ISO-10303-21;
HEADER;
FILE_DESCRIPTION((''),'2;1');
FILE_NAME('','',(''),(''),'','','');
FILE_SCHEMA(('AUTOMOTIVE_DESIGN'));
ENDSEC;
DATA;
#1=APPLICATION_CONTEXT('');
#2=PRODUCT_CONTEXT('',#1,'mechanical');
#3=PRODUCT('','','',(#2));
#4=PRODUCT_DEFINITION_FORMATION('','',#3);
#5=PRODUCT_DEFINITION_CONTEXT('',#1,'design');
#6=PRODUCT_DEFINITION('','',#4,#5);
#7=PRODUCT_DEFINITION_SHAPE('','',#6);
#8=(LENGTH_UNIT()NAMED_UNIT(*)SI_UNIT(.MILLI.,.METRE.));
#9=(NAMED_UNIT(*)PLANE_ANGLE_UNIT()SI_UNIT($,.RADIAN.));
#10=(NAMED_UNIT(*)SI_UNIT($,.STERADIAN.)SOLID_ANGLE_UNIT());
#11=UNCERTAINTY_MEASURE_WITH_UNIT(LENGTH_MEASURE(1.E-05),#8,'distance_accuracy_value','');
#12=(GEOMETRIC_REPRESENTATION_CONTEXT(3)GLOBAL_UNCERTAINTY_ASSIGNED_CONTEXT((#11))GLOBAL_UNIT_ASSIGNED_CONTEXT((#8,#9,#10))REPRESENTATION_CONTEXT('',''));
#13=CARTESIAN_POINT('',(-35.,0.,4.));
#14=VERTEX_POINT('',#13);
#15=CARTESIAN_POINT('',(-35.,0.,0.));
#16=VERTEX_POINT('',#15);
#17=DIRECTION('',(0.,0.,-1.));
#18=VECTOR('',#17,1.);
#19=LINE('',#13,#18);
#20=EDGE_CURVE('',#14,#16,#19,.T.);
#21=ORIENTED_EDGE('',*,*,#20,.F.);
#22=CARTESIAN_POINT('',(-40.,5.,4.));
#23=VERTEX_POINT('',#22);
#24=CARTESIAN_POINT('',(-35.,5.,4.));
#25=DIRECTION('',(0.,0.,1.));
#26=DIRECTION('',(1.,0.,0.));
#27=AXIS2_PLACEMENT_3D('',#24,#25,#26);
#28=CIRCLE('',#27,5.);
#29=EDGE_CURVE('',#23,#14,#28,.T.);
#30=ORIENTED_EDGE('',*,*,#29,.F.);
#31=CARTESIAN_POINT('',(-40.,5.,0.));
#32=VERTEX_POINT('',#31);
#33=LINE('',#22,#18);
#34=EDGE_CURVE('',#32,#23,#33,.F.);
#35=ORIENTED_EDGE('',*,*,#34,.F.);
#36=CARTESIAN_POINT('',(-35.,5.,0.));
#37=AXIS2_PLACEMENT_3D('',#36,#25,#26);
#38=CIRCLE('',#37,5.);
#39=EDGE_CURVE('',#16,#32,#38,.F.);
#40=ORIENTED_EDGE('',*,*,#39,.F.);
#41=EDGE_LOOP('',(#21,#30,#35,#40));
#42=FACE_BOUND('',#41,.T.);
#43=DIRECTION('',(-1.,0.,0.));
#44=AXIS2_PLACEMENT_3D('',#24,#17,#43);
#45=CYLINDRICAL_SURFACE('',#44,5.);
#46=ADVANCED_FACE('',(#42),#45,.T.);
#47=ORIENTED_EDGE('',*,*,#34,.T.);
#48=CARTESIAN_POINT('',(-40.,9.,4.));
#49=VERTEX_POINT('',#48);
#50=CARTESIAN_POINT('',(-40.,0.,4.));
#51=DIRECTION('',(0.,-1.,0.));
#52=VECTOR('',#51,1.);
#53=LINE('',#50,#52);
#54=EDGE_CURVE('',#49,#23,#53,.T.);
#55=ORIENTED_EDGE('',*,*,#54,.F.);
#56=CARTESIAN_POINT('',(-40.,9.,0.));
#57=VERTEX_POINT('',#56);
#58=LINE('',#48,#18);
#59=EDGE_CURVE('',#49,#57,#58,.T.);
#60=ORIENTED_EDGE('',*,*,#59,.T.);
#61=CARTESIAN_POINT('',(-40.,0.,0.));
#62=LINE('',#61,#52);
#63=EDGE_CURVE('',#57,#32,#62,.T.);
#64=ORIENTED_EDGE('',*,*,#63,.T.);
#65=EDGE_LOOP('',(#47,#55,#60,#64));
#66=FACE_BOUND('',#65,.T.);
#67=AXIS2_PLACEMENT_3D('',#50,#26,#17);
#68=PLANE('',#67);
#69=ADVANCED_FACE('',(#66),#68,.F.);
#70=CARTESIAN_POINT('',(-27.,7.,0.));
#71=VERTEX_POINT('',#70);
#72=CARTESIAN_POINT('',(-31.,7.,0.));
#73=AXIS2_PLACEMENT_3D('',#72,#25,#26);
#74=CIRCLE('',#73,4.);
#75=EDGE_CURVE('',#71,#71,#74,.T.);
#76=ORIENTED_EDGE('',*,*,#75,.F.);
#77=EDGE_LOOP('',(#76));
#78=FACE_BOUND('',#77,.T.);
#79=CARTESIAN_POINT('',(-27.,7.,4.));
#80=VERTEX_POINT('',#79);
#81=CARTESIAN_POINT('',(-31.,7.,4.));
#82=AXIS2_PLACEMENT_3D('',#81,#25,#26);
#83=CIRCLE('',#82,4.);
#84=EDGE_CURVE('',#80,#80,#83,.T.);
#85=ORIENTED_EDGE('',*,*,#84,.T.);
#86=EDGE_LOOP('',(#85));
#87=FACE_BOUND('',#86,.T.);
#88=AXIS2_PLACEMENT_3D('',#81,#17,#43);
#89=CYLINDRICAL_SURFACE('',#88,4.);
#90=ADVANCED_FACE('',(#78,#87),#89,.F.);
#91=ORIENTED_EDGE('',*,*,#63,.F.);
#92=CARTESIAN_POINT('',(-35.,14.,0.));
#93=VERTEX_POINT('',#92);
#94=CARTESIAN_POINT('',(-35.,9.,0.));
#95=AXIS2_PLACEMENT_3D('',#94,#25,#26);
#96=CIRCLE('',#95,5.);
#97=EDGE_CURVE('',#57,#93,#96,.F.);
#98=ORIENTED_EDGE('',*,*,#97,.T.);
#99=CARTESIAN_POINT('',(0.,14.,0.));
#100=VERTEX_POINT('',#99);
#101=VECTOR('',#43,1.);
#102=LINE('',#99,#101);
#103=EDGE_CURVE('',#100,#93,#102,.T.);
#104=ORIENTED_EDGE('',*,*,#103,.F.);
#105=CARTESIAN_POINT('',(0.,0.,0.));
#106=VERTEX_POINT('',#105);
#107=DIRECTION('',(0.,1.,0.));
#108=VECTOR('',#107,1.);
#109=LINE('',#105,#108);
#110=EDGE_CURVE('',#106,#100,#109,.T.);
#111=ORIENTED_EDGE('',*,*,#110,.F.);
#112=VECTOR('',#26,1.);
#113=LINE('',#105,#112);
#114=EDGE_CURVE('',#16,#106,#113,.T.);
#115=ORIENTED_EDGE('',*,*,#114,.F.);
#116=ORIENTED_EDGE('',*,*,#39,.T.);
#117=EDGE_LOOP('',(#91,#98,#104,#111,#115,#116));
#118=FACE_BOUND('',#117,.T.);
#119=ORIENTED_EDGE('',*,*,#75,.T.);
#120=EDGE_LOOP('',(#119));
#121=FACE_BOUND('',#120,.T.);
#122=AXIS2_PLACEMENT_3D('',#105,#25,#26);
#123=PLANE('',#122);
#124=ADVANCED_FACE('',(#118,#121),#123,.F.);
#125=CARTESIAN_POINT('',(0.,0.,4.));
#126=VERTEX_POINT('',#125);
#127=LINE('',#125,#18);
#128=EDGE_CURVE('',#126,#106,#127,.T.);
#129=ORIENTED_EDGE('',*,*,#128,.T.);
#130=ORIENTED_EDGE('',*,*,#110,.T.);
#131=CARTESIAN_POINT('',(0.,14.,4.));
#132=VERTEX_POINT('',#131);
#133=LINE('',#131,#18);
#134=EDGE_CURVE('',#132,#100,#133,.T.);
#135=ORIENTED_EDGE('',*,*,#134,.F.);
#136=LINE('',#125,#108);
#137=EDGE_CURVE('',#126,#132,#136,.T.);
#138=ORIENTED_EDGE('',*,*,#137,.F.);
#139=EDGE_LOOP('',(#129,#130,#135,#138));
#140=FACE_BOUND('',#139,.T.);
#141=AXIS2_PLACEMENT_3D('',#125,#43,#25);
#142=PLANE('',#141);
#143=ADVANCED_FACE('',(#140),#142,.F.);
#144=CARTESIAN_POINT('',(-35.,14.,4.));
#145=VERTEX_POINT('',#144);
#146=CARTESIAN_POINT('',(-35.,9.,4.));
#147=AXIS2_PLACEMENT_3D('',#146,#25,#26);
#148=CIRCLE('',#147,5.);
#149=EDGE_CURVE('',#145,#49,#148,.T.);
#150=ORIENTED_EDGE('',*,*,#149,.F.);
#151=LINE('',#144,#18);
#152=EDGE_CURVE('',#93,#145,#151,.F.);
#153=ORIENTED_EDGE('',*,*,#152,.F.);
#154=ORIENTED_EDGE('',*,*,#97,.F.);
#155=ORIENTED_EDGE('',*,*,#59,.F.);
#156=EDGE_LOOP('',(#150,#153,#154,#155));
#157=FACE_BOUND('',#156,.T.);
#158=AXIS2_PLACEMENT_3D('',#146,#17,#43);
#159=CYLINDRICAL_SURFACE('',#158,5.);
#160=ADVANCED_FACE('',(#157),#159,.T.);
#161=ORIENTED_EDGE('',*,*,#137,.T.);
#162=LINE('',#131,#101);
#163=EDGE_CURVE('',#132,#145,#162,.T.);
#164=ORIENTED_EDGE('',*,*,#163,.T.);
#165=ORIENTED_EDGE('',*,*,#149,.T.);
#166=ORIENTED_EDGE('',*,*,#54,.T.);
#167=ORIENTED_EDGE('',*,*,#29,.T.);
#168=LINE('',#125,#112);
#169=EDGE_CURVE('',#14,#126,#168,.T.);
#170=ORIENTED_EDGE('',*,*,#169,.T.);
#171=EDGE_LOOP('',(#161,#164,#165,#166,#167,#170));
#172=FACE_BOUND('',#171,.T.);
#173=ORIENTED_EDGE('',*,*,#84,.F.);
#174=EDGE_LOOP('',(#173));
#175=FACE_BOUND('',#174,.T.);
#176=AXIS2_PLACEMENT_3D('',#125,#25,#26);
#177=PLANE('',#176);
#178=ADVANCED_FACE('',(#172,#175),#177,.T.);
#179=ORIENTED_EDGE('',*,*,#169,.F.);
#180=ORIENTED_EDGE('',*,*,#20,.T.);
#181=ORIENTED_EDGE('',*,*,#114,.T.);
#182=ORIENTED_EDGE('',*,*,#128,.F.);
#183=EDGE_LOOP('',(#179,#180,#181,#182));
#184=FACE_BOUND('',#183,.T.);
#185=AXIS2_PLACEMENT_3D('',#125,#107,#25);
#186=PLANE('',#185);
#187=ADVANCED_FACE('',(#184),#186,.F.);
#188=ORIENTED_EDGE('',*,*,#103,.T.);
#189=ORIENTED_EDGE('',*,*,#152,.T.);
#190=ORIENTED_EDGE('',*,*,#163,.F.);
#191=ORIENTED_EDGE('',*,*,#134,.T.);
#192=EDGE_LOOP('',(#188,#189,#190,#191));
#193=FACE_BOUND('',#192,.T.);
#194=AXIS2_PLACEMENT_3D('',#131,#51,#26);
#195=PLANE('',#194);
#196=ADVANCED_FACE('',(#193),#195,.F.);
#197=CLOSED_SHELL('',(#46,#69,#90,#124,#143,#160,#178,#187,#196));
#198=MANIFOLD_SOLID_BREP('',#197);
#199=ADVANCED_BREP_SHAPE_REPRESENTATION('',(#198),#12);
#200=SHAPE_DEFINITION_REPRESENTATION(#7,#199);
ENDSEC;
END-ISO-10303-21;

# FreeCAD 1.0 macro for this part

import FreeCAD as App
import Part
import Sketcher

V = App.Vector
Q = App.Units.Quantity


def edges_at(feature, points):
    """Names of the edges that pass closest to the given points."""
    edges = feature.Shape.Edges
    near = lambda p: min(range(len(edges)), key=lambda i: edges[i].distToShape(Part.Vertex(*p))[0])
    return sorted({f"Edge{near(p) + 1}" for p in points})


def add_polygon(sketch, points):
    """Adds a closed chain of lines whose ends are joined by coincident constraints."""
    first, n = sketch.GeometryCount, len(points)
    for a, b in zip(points, points[1:] + points[:1]):
        sketch.addGeometry(Part.LineSegment(App.Vector(*a, 0), App.Vector(*b, 0)), False)
    for i in range(n):
        sketch.addConstraint(Sketcher.Constraint("Coincident", first + i, 2, first + (i + 1) % n, 1))

doc = App.newDocument("Part")
params = doc.addObject("Spreadsheet::Sheet", "Params")
for row, (alias, value) in enumerate([
    ("sketch1_diameter", "8 mm"),
    ("sketch1_width", "40 mm"),
    ("sketch1_height", "14 mm"),
    ("pad1_length", "4 mm"),
    ("fillet_radius", "5 mm"),
], start=1):
    params.set(f"A{row}", alias)
    params.set(f"B{row}", "=" + value)
    params.setAlias(f"B{row}", alias)

body = doc.addObject("PartDesign::Body", "Body")

# Sketch on XY plane
sketch1 = body.newObject("Sketcher::SketchObject", "Sketch")
sketch1.AttachmentSupport = (doc.getObject("XY_Plane"), [""])
sketch1.MapMode = "FlatFace"
add_polygon(sketch1, [(-40, 14), (-40, 0), (0, 0), (0, 14)])  # lines 0-3
sketch1.addGeometry(Part.Circle(V(-31, 7, 0), V(0, 0, 1), 4), False)  # 4
sketch1.addConstraint(Sketcher.Constraint("Vertical", 0))
sketch1.addConstraint(Sketcher.Constraint("Horizontal", 1))
sketch1.addConstraint(Sketcher.Constraint("Vertical", 2))
sketch1.addConstraint(Sketcher.Constraint("Horizontal", 3))
sketch1.addConstraint(Sketcher.Constraint("Coincident", 1, 2, -1, 1))
sketch1.addConstraint(Sketcher.Constraint("Diameter", 4, Q("8 mm")))
sketch1.addConstraint(Sketcher.Constraint("DistanceX", 1, 1, 1, 2, Q("40 mm")))
sketch1.addConstraint(Sketcher.Constraint("DistanceY", 0, 2, 0, 1, Q("14 mm")))
sketch1.addConstraint(Sketcher.Constraint("DistanceX", 4, 3, -1, 1, Q("31 mm")))
sketch1.addConstraint(Sketcher.Constraint("DistanceY", -1, 1, 4, 3, Q("7 mm")))
sketch1.setExpression("Constraints[9]", "Params.sketch1_diameter")
sketch1.setExpression("Constraints[10]", "Params.sketch1_width")
sketch1.setExpression("Constraints[11]", "Params.sketch1_height")
pad1 = body.newObject("PartDesign::Pad", "Pad")
pad1.Profile = sketch1
pad1.setExpression("Length", "Params.pad1_length")
doc.recompute()

fillet = body.newObject("PartDesign::Fillet", "Fillet")
fillet.Base = (pad1, edges_at(pad1, [(-40, 0, 2), (-40, 14, 2)]))
fillet.setExpression("Radius", "Params.fillet_radius")

doc.recompute()
